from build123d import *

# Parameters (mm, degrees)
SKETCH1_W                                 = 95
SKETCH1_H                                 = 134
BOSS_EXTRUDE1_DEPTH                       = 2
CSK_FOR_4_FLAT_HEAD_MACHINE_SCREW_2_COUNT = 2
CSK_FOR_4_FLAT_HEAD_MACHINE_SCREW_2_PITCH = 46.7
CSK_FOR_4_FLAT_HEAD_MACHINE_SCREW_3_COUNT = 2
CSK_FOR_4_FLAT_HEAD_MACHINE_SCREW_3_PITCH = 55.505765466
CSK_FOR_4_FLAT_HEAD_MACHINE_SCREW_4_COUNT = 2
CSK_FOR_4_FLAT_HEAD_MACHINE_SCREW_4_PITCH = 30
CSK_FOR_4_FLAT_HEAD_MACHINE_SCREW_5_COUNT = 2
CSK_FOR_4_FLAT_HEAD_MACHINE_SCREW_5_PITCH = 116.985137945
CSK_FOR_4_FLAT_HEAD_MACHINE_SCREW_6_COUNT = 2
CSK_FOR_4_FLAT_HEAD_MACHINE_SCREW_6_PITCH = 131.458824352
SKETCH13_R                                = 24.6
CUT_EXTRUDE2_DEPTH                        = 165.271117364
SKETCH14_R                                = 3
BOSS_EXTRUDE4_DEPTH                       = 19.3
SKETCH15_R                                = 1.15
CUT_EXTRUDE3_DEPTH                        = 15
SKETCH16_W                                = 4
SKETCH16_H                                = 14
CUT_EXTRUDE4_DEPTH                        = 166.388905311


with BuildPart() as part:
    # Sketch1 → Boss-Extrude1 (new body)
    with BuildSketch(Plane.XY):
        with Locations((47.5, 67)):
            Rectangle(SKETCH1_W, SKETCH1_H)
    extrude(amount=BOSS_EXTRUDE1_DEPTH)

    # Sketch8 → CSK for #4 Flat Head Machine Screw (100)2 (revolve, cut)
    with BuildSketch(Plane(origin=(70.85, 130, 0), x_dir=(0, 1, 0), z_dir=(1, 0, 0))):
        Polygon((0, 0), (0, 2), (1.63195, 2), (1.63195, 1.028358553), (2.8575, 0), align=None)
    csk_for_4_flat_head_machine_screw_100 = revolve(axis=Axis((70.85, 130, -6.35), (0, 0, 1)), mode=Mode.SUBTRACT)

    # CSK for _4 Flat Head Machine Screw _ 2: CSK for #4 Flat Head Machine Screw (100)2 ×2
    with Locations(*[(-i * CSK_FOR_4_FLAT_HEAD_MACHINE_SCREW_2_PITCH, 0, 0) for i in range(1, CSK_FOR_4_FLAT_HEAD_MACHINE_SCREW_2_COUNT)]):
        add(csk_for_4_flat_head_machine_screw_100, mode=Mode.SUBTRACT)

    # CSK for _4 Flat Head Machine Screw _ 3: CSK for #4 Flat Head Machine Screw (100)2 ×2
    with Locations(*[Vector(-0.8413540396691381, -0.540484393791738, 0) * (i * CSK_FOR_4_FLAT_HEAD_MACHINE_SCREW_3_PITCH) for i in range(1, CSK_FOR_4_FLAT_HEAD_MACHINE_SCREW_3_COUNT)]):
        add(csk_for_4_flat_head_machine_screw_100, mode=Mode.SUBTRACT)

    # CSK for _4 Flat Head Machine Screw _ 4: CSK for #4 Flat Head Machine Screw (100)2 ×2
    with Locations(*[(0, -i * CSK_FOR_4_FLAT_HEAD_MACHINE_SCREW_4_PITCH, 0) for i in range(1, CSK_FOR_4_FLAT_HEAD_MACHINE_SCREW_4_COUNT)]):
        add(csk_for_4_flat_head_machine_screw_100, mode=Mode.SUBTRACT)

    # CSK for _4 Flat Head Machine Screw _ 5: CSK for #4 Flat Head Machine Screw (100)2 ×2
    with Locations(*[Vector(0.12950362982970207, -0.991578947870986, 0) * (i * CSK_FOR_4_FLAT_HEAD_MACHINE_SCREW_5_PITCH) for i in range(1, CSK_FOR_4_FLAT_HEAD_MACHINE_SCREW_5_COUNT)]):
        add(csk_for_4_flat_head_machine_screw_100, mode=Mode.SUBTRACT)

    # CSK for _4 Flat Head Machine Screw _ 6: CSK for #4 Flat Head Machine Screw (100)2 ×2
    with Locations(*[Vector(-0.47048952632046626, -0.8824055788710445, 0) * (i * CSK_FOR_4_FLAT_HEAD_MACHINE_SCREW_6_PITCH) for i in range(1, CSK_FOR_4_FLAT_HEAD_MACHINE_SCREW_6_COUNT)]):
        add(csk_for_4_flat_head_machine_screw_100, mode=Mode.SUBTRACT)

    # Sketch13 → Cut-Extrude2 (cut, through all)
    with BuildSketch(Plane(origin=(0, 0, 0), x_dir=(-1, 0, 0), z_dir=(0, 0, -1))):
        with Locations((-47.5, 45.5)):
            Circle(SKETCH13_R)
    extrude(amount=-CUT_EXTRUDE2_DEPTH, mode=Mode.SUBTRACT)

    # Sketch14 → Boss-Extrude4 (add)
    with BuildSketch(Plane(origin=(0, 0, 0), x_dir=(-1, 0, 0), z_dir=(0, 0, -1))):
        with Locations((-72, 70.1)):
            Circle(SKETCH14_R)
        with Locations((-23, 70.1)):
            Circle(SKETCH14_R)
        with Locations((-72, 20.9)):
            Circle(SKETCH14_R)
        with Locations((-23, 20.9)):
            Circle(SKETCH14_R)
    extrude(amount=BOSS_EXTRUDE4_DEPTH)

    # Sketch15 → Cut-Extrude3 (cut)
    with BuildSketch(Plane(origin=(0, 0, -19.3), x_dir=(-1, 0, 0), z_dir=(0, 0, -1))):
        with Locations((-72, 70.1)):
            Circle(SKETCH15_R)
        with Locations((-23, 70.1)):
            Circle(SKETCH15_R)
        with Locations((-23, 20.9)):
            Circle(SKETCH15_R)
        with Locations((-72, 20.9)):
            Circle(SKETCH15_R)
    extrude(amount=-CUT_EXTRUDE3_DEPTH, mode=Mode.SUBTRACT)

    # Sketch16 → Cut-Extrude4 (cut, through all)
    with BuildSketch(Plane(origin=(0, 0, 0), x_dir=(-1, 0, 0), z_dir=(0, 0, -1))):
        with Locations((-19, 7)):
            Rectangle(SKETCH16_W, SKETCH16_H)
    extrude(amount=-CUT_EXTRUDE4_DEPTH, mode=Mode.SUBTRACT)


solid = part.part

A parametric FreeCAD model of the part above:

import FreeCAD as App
import Part
import Sketcher
Q = App.Units.Quantity


def add_polygon(sketch, points):
    """Adds a closed chain of lines whose ends are joined by coincident constraints."""
    first, n = sketch.GeometryCount, len(points)
    for a, b in zip(points, points[1:] + points[:1]):
        sketch.addGeometry(Part.LineSegment(App.Vector(*a, 0), App.Vector(*b, 0)), False)
    for i in range(n):
        sketch.addConstraint(Sketcher.Constraint("Coincident", first + i, 2, first + (i + 1) % n, 1))

doc = App.newDocument("Part")
params = doc.addObject("Spreadsheet::Sheet", "Params")
for row, (alias, value) in enumerate([
    ("sketch1_width", "95 mm"),
    ("sketch1_height", "134 mm"),
    ("pad1_length", "2 mm"),
    ("sketch2_height", "2 mm"),
    ("groove_angle", "360 deg"),
    ("linearpattern_pitch", "46.7 mm"),
    ("linearpattern2_pitch", "55.505765 mm"),
    ("linearpattern3_pitch", "30 mm"),
    ("linearpattern4_pitch", "116.985138 mm"),
    ("linearpattern5_pitch", "131.458824 mm"),
    ("sketch3_diameter", "49.2 mm"),
    ("sketch4_diameter", "6 mm"),
    ("pad2_length", "19.3 mm"),
    ("sketch5_diameter", "2.3 mm"),
    ("pocket2_length", "15 mm"),
    ("sketch6_width", "4 mm"),
    ("sketch6_height", "14 mm"),
], start=1):
    params.set(f"A{row}", alias)
    params.set(f"B{row}", "=" + value)
    params.setAlias(f"B{row}", alias)

body = doc.addObject("PartDesign::Body", "Body")

# Sketch on XY plane
sketch1 = body.newObject("Sketcher::SketchObject", "Sketch")
sketch1.AttachmentSupport = (doc.getObject("XY_Plane"), [""])
sketch1.MapMode = "FlatFace"
add_polygon(sketch1, [(0, 134), (0, 0), (95, 0), (95, 134)])  # lines 0-3
sketch1.addConstraint([
    Sketcher.Constraint("Vertical", 0),
    Sketcher.Constraint("Horizontal", 1),
    Sketcher.Constraint("Vertical", 2),
    Sketcher.Constraint("Horizontal", 3),
    Sketcher.Constraint("Coincident", 0, 2, -1, 1),
    Sketcher.Constraint("DistanceX", 1, 1, 1, 2, 95.0),
    Sketcher.Constraint("DistanceY", 0, 2, 0, 1, 134.0),
])
sketch1.setExpression("Constraints[9]", "Params.sketch1_width")
sketch1.setExpression("Constraints[10]", "Params.sketch1_height")
pad1 = body.newObject("PartDesign::Pad", "Pad")
pad1.Profile = sketch1
pad1.setExpression("Length", "Params.pad1_length")

# Sketch on YZ plane
sketch2 = body.newObject("Sketcher::SketchObject", "Sketch001")
sketch2.AttachmentSupport = (doc.getObject("YZ_Plane"), [""])
sketch2.MapMode = "FlatFace"
sketch2.AttachmentOffset = App.Placement(App.Vector(0, 0, 70.85), App.Rotation())
add_polygon(sketch2, [(130, 2), (130, 0), (132.9, 0), (131.6, 1), (131.6, 2)])  # lines 0-4
sketch2.addGeometry(Part.LineSegment(App.Vector(130, 0, 0), App.Vector(130, 2, 0)), True)  # axis
sketch2.addConstraint([
    Sketcher.Constraint("Vertical", 0),
    Sketcher.Constraint("Horizontal", 1),
    Sketcher.Constraint("Vertical", 3),
    Sketcher.Constraint("Horizontal", 4),
    Sketcher.Constraint("Vertical", 5),
    Sketcher.Constraint("Coincident", 5, 1, 0, 2),
    Sketcher.Constraint("PointOnObject", 0, 2, -1),
    Sketcher.Constraint("Horizontal", 3, 2, 5, 2),
    Sketcher.Constraint("DistanceY", 0, 2, 0, 1, 2.0),
    Sketcher.Constraint("Angle", 2, Q("140 deg")),
    Sketcher.Constraint("DistanceX", -1, 1, 0, 2, 130.0),
    Sketcher.Constraint("DistanceX", 1, 1, 1, 2, 2.8575),
    Sketcher.Constraint("DistanceX", 4, 2, 4, 1, 1.63195),
])
sketch2.setExpression("Constraints[13]", "Params.sketch2_height")
groove = body.newObject("PartDesign::Groove", "Groove")
groove.Profile = sketch2
groove.ReferenceAxis = (sketch2, ["Axis0"])
groove.setExpression("Angle", "Params.groove_angle")
doc.recompute()

linearpattern = body.newObject("PartDesign::LinearPattern", "LinearPattern")
linearpattern.Originals = [groove]
linearpattern.Direction = (doc.getObject("X_Axis"), [""])
linearpattern.Mode = "offset"
linearpattern.setExpression("Offset", "Params.linearpattern_pitch")
linearpattern.Occurrences = 2
linearpattern.Reversed = True
body.Tip = linearpattern
doc.recompute()

datumline = body.newObject("PartDesign::Line", "DatumLine")
datumline.Placement = App.Placement(App.Vector(0, 0, 0), App.Rotation(App.Vector(0, 0, 1), App.Vector(-0.84135404, -0.540484394, 0)))
linearpattern2 = body.newObject("PartDesign::LinearPattern", "LinearPattern001")
linearpattern2.Originals = [groove]
linearpattern2.Direction = (datumline, [""])
linearpattern2.Mode = "offset"
linearpattern2.setExpression("Offset", "Params.linearpattern2_pitch")
linearpattern2.Occurrences = 2
body.Tip = linearpattern2
doc.recompute()

linearpattern3 = body.newObject("PartDesign::LinearPattern", "LinearPattern002")
linearpattern3.Originals = [groove]
linearpattern3.Direction = (doc.getObject("Y_Axis"), [""])
linearpattern3.Mode = "offset"
linearpattern3.setExpression("Offset", "Params.linearpattern3_pitch")
linearpattern3.Occurrences = 2
linearpattern3.Reversed = True
body.Tip = linearpattern3
doc.recompute()

datumline2 = body.newObject("PartDesign::Line", "DatumLine001")
datumline2.Placement = App.Placement(App.Vector(0, 0, 0), App.Rotation(App.Vector(0, 0, 1), App.Vector(0.12950363, -0.991578948, 0)))
linearpattern4 = body.newObject("PartDesign::LinearPattern", "LinearPattern003")
linearpattern4.Originals = [groove]
linearpattern4.Direction = (datumline2, [""])
linearpattern4.Mode = "offset"
linearpattern4.setExpression("Offset", "Params.linearpattern4_pitch")
linearpattern4.Occurrences = 2
body.Tip = linearpattern4
doc.recompute()

datumline3 = body.newObject("PartDesign::Line", "DatumLine002")
datumline3.Placement = App.Placement(App.Vector(0, 0, 0), App.Rotation(App.Vector(0, 0, 1), App.Vector(-0.470489526, -0.882405579, 0)))
linearpattern5 = body.newObject("PartDesign::LinearPattern", "LinearPattern004")
linearpattern5.Originals = [groove]
linearpattern5.Direction = (datumline3, [""])
linearpattern5.Mode = "offset"
linearpattern5.setExpression("Offset", "Params.linearpattern5_pitch")
linearpattern5.Occurrences = 2
body.Tip = linearpattern5

# Sketch on XY plane
sketch3 = body.newObject("Sketcher::SketchObject", "Sketch002")
sketch3.AttachmentSupport = (doc.getObject("XY_Plane"), [""])
sketch3.MapMode = "FlatFace"
sketch3.addGeometry(Part.Circle(App.Vector(48, 46, 0), App.Vector(0, 0, 1), 25), False)
sketch3.addConstraint([
    Sketcher.Constraint("Diameter", 0, 49.2),
    Sketcher.Constraint("DistanceX", -1, 1, 0, 3, 47.5),
    Sketcher.Constraint("DistanceY", -1, 1, 0, 3, 45.5),
])
sketch3.setExpression("Constraints[0]", "Params.sketch3_diameter")
pocket1 = body.newObject("PartDesign::Pocket", "Pocket")
pocket1.Profile = sketch3
pocket1.Type = "ThroughAll"
pocket1.Reversed = True

# Sketch on XY plane
sketch4 = body.newObject("Sketcher::SketchObject", "Sketch003")
sketch4.AttachmentSupport = (doc.getObject("XY_Plane"), [""])
sketch4.MapMode = "FlatFace"
sketch4.addGeometry([
    Part.Circle(App.Vector(72, 70.1, 0), App.Vector(0, 0, 1), 3),
    Part.Circle(App.Vector(23, 70.1, 0), App.Vector(0, 0, 1), 3),
    Part.Circle(App.Vector(72, 20.9, 0), App.Vector(0, 0, 1), 3),
    Part.Circle(App.Vector(23, 20.9, 0), App.Vector(0, 0, 1), 3),
], False)
sketch4.addConstraint([
    Sketcher.Constraint("Equal", 0, 1),
    Sketcher.Constraint("Equal", 1, 2),
    Sketcher.Constraint("Equal", 2, 3),
    Sketcher.Constraint("Horizontal", 0, 3, 1, 3),
    Sketcher.Constraint("Horizontal", 2, 3, 3, 3),
    Sketcher.Constraint("Vertical", 0, 3, 2, 3),
    Sketcher.Constraint("Vertical", 1, 3, 3, 3),
    Sketcher.Constraint("Diameter", 0, 6.0),
    Sketcher.Constraint("DistanceX", -1, 1, 0, 3, 72.0),
    Sketcher.Constraint("DistanceX", -1, 1, 1, 3, 23.0),
    Sketcher.Constraint("DistanceY", -1, 1, 0, 3, 70.1),
    Sketcher.Constraint("DistanceY", -1, 1, 2, 3, 20.9),
])
sketch4.setExpression("Constraints[7]", "Params.sketch4_diameter")
pad2 = body.newObject("PartDesign::Pad", "Pad001")
pad2.Profile = sketch4
pad2.setExpression("Length", "Params.pad2_length")
pad2.Reversed = True

# Sketch on XY plane
sketch5 = body.newObject("Sketcher::SketchObject", "Sketch004")
sketch5.AttachmentSupport = (doc.getObject("XY_Plane"), [""])
sketch5.MapMode = "FlatFace"
sketch5.AttachmentOffset = App.Placement(App.Vector(0, 0, -19.3), App.Rotation())
sketch5.addGeometry([
    Part.Circle(App.Vector(72, 70.1, 0), App.Vector(0, 0, 1), 1.1),
    Part.Circle(App.Vector(23, 70.1, 0), App.Vector(0, 0, 1), 1.1),
    Part.Circle(App.Vector(23, 20.9, 0), App.Vector(0, 0, 1), 1.1),
    Part.Circle(App.Vector(72, 20.9, 0), App.Vector(0, 0, 1), 1.1),
], False)
sketch5.addConstraint([
    Sketcher.Constraint("Equal", 0, 1),
    Sketcher.Constraint("Equal", 1, 2),
    Sketcher.Constraint("Equal", 2, 3),
    Sketcher.Constraint("Horizontal", 0, 3, 1, 3),
    Sketcher.Constraint("Horizontal", 2, 3, 3, 3),
    Sketcher.Constraint("Vertical", 1, 3, 2, 3),
    Sketcher.Constraint("Vertical", 0, 3, 3, 3),
    Sketcher.Constraint("Diameter", 0, 2.3),
    Sketcher.Constraint("DistanceX", -1, 1, 0, 3, 72.0),
    Sketcher.Constraint("DistanceX", -1, 1, 1, 3, 23.0),
    Sketcher.Constraint("DistanceY", -1, 1, 0, 3, 70.1),
    Sketcher.Constraint("DistanceY", -1, 1, 2, 3, 20.9),
])
sketch5.setExpression("Constraints[7]", "Params.sketch5_diameter")
pocket2 = body.newObject("PartDesign::Pocket", "Pocket001")
pocket2.Profile = sketch5
pocket2.setExpression("Length", "Params.pocket2_length")
pocket2.Reversed = True

# Sketch on XY plane
sketch6 = body.newObject("Sketcher::SketchObject", "Sketch005")
sketch6.AttachmentSupport = (doc.getObject("XY_Plane"), [""])
sketch6.MapMode = "FlatFace"
add_polygon(sketch6, [(21, 14), (21, 0), (17, 0), (17, 14)])  # lines 0-3
sketch6.addConstraint([
    Sketcher.Constraint("Vertical", 0),
    Sketcher.Constraint("Horizontal", 1),
    Sketcher.Constraint("Vertical", 2),
    Sketcher.Constraint("Horizontal", 3),
    Sketcher.Constraint("PointOnObject", 0, 2, -1),
    Sketcher.Constraint("DistanceX", 1, 2, 1, 1, 4.0),
    Sketcher.Constraint("DistanceY", 0, 2, 0, 1, 14.0),
    Sketcher.Constraint("DistanceX", -1, 1, 0, 2, 21.0),
])
sketch6.setExpression("Constraints[9]", "Params.sketch6_width")
sketch6.setExpression("Constraints[10]", "Params.sketch6_height")
pocket3 = body.newObject("PartDesign::Pocket", "Pocket002")
pocket3.Profile = sketch6
pocket3.Type = "ThroughAll"
pocket3.Reversed = True

doc.recompute()
